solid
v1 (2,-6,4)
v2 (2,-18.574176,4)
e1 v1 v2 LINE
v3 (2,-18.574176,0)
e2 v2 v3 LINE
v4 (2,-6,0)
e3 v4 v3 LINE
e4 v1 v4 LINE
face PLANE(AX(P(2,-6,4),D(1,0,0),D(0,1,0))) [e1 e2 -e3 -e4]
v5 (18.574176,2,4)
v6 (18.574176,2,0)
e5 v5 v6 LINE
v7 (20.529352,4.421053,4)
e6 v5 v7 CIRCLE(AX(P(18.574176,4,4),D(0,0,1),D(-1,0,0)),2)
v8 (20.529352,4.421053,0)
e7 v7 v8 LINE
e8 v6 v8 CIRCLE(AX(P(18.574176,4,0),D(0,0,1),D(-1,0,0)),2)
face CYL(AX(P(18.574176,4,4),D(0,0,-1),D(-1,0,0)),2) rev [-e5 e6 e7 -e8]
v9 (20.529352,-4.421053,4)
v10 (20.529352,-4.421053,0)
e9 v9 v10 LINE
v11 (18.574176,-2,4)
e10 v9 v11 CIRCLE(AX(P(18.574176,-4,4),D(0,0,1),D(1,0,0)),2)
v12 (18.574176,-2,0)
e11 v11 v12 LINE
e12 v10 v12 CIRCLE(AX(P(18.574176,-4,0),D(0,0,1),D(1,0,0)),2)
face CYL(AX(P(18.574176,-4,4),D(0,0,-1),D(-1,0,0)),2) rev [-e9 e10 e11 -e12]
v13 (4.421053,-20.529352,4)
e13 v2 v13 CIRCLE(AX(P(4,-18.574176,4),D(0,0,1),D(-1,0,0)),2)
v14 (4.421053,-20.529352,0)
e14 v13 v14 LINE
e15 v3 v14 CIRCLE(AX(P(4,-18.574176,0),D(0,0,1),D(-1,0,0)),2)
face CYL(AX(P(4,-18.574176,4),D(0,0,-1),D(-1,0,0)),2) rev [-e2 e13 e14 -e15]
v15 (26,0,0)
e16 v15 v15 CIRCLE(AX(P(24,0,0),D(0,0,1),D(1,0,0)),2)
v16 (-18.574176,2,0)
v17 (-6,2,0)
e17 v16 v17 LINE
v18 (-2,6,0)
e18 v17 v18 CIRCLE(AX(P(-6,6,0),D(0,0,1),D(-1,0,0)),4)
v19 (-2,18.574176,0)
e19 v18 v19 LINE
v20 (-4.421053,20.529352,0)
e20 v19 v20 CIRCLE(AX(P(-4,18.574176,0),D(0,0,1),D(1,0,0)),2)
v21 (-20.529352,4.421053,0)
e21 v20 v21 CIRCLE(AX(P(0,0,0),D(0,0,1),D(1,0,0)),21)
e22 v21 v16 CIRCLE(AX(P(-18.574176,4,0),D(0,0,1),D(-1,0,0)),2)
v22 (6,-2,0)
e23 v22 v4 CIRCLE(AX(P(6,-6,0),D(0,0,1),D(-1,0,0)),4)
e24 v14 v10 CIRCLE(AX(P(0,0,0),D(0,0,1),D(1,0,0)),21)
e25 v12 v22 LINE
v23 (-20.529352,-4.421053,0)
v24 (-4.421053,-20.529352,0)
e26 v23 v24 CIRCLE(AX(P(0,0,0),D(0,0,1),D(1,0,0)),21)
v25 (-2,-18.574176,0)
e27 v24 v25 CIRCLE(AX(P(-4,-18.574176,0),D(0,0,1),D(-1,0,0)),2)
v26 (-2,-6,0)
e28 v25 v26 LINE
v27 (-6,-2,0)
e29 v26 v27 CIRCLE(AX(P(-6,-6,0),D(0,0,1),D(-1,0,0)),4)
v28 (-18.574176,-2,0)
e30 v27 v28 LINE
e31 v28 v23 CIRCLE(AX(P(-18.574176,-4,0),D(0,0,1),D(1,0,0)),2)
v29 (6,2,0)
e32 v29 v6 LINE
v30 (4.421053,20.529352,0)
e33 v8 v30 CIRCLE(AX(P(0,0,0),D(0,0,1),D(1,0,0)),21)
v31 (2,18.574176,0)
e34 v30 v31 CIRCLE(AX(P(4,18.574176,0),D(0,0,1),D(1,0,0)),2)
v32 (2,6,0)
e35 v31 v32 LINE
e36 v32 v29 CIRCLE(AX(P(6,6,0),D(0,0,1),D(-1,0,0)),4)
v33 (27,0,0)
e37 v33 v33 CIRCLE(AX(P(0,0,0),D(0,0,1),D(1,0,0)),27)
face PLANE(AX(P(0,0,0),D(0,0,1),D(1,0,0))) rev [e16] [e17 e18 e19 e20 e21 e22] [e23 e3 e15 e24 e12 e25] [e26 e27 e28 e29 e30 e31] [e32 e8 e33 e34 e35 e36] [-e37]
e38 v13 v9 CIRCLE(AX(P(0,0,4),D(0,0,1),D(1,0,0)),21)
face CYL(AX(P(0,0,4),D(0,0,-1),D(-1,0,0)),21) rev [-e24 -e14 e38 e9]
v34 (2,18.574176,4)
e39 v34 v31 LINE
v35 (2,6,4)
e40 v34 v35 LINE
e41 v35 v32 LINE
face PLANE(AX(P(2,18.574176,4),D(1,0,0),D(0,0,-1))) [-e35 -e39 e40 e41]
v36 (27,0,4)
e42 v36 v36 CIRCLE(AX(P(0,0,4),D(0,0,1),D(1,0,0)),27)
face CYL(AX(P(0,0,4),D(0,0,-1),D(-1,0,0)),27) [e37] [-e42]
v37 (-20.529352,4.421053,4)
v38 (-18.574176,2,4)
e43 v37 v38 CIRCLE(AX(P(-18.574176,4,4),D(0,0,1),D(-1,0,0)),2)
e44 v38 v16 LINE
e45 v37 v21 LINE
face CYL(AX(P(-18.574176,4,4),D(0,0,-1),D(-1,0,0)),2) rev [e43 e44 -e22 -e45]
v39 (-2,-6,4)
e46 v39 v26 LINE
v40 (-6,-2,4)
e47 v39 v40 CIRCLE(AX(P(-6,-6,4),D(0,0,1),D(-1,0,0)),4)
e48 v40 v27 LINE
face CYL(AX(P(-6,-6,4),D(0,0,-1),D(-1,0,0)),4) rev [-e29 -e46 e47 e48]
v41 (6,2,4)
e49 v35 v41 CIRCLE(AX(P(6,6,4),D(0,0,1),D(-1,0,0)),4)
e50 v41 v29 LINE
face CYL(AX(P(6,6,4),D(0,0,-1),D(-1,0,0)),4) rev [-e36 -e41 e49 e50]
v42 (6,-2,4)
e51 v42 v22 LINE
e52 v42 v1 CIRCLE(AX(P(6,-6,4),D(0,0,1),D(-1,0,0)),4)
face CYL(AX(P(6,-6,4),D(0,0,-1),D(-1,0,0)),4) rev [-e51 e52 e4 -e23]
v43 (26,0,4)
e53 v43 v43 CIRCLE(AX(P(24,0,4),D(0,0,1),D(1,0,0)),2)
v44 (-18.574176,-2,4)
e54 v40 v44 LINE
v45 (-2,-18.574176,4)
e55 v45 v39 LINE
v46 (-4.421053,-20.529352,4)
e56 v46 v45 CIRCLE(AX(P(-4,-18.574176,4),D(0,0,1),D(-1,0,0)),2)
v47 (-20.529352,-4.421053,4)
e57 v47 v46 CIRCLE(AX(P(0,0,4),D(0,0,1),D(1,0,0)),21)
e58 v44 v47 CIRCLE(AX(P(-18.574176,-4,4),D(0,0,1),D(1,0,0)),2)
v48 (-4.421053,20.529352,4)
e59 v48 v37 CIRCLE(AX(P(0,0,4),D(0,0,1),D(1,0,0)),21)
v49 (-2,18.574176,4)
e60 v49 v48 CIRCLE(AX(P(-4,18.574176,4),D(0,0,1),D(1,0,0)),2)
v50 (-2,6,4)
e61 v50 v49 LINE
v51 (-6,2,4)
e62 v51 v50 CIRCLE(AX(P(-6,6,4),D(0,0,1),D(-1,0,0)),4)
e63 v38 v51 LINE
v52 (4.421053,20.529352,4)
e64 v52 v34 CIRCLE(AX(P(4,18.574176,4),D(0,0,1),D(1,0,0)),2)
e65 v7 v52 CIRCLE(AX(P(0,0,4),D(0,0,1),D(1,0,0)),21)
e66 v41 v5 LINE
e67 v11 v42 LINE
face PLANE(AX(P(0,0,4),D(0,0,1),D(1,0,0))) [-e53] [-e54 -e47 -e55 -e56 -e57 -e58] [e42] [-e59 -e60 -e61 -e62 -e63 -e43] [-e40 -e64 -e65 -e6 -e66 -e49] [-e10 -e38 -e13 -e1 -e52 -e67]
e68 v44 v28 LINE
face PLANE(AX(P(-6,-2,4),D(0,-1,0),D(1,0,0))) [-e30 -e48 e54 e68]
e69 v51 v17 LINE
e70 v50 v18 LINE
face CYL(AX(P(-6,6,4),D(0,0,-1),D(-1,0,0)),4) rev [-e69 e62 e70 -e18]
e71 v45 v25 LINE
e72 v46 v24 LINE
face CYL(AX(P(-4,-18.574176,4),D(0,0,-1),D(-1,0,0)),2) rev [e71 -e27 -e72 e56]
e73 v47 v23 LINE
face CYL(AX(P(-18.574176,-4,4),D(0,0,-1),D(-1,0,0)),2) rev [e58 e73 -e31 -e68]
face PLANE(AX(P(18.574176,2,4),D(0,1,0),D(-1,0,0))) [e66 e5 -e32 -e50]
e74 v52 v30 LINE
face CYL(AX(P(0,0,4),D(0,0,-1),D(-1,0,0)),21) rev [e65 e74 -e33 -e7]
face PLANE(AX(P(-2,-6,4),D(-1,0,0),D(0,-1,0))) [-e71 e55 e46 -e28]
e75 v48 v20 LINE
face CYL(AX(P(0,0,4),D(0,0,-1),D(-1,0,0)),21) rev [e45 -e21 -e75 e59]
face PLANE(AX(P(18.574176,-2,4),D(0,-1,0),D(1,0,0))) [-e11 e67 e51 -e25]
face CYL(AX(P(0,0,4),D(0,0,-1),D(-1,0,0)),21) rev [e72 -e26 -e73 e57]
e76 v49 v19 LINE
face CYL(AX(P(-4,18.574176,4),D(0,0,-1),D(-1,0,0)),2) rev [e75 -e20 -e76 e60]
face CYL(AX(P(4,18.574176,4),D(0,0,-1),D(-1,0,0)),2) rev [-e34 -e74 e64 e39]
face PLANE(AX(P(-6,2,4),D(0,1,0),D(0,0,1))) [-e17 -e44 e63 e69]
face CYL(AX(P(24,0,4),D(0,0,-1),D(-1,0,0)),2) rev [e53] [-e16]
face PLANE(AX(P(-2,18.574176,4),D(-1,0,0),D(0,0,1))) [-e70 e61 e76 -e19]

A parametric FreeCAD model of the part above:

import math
import FreeCAD as App
import Part
import Sketcher
from FreeCAD import Vector

doc = App.newDocument("Part")
body = doc.addObject("PartDesign::Body", "Body")

sketch1 = body.newObject("Sketcher::SketchObject", "Sketch")
sketch1.AttachmentSupport = (doc.getObject("XY_Plane"), [""])
sketch1.MapMode = "FlatFace"
sketch1.addGeometry(Part.Circle(Vector(0, 0, 0), Vector(0, 0, 1), 27), False)
sketch1.addGeometry(Part.LineSegment(Vector(-18.574176, -2, 0), Vector(-6, -2, 0)), False)
sketch1.addGeometry(Part.ArcOfCircle(Part.Circle(Vector(-6, -6, 0), Vector(0, 0, 1), 4), math.radians(0), math.radians(90)), False)
sketch1.addGeometry(Part.LineSegment(Vector(-2, -6, 0), Vector(-2, -18.574176, 0)), False)
sketch1.addGeometry(Part.ArcOfCircle(Part.Circle(Vector(-4, -18.574176, 0), Vector(0, 0, 1), 2), math.radians(-102.153197), math.radians(0)), False)
sketch1.addGeometry(Part.ArcOfCircle(Part.Circle(Vector(0, 0, 0), Vector(0, 0, 1), 21), math.radians(-167.846803), math.radians(-102.153197)), False)
sketch1.addGeometry(Part.ArcOfCircle(Part.Circle(Vector(-18.574176, -4, 0), Vector(0, 0, 1), 2), math.radians(90), math.radians(192.153197)), False)
sketch1.addGeometry(Part.LineSegment(Vector(6, -2, 0), Vector(18.574176, -2, 0)), False)
sketch1.addGeometry(Part.ArcOfCircle(Part.Circle(Vector(18.574176, -4, 0), Vector(0, 0, 1), 2), math.radians(-12.153197), math.radians(90)), False)
sketch1.addGeometry(Part.ArcOfCircle(Part.Circle(Vector(0, 0, 0), Vector(0, 0, 1), 21), math.radians(-77.846803), math.radians(-12.153197)), False)
sketch1.addGeometry(Part.ArcOfCircle(Part.Circle(Vector(4, -18.574176, 0), Vector(0, 0, 1), 2), math.radians(180), math.radians(282.153197)), False)
sketch1.addGeometry(Part.LineSegment(Vector(2, -18.574176, 0), Vector(2, -6, 0)), False)
sketch1.addGeometry(Part.ArcOfCircle(Part.Circle(Vector(6, -6, 0), Vector(0, 0, 1), 4), math.radians(90), math.radians(180)), False)
sketch1.addGeometry(Part.ArcOfCircle(Part.Circle(Vector(-4, 18.574176, 0), Vector(0, 0, 1), 2), math.radians(0), math.radians(102.153197)), False)
sketch1.addGeometry(Part.LineSegment(Vector(-2, 18.574176, 0), Vector(-2, 6, 0)), False)
sketch1.addGeometry(Part.ArcOfCircle(Part.Circle(Vector(-6, 6, 0), Vector(0, 0, 1), 4), math.radians(-90), math.radians(0)), False)
sketch1.addGeometry(Part.LineSegment(Vector(-6, 2, 0), Vector(-18.574176, 2, 0)), False)
sketch1.addGeometry(Part.ArcOfCircle(Part.Circle(Vector(-18.574176, 4, 0), Vector(0, 0, 1), 2), math.radians(167.846803), math.radians(270)), False)
sketch1.addGeometry(Part.ArcOfCircle(Part.Circle(Vector(0, 0, 0), Vector(0, 0, 1), 21), math.radians(102.153197), math.radians(167.846803)), False)
sketch1.addGeometry(Part.Circle(Vector(24, 0, 0), Vector(0, 0, 1), 2), False)
sketch1.addGeometry(Part.ArcOfCircle(Part.Circle(Vector(18.574176, 4, 0), Vector(0, 0, 1), 2), math.radians(-90), math.radians(12.153197)), False)
sketch1.addGeometry(Part.LineSegment(Vector(18.574176, 2, 0), Vector(6, 2, 0)), False)
sketch1.addGeometry(Part.ArcOfCircle(Part.Circle(Vector(6, 6, 0), Vector(0, 0, 1), 4), math.radians(180), math.radians(270)), False)
sketch1.addGeometry(Part.LineSegment(Vector(2, 6, 0), Vector(2, 18.574176, 0)), False)
sketch1.addGeometry(Part.ArcOfCircle(Part.Circle(Vector(4, 18.574176, 0), Vector(0, 0, 1), 2), math.radians(77.846803), math.radians(180)), False)
sketch1.addGeometry(Part.ArcOfCircle(Part.Circle(Vector(0, 0, 0), Vector(0, 0, 1), 21), math.radians(12.153197), math.radians(77.846803)), False)
sketch1.addConstraint(Sketcher.Constraint("Tangent", 1, 2, 2, 2))
sketch1.addConstraint(Sketcher.Constraint("Tangent", 2, 1, 3, 1))
sketch1.addConstraint(Sketcher.Constraint("Tangent", 3, 2, 4, 2))
sketch1.addConstraint(Sketcher.Constraint("Tangent", 4, 1, 5, 2))
sketch1.addConstraint(Sketcher.Constraint("Tangent", 5, 1, 6, 2))
sketch1.addConstraint(Sketcher.Constraint("Tangent", 6, 1, 1, 1))
sketch1.addConstraint(Sketcher.Constraint("Tangent", 7, 2, 8, 2))
sketch1.addConstraint(Sketcher.Constraint("Tangent", 8, 1, 9, 2))
sketch1.addConstraint(Sketcher.Constraint("Tangent", 9, 1, 10, 2))
sketch1.addConstraint(Sketcher.Constraint("Tangent", 10, 1, 11, 1))
sketch1.addConstraint(Sketcher.Constraint("Tangent", 11, 2, 12, 2))
sketch1.addConstraint(Sketcher.Constraint("Tangent", 12, 1, 7, 1))
sketch1.addConstraint(Sketcher.Constraint("Tangent", 13, 1, 14, 1))
sketch1.addConstraint(Sketcher.Constraint("Tangent", 14, 2, 15, 2))
sketch1.addConstraint(Sketcher.Constraint("Tangent", 15, 1, 16, 1))
sketch1.addConstraint(Sketcher.Constraint("Tangent", 16, 2, 17, 2))
sketch1.addConstraint(Sketcher.Constraint("Tangent", 17, 1, 18, 2))
sketch1.addConstraint(Sketcher.Constraint("Tangent", 18, 1, 13, 2))
sketch1.addConstraint(Sketcher.Constraint("Tangent", 20, 1, 21, 1))
sketch1.addConstraint(Sketcher.Constraint("Tangent", 21, 2, 22, 2))
sketch1.addConstraint(Sketcher.Constraint("Tangent", 22, 1, 23, 1))
sketch1.addConstraint(Sketcher.Constraint("Tangent", 23, 2, 24, 2))
sketch1.addConstraint(Sketcher.Constraint("Tangent", 24, 1, 25, 2))
sketch1.addConstraint(Sketcher.Constraint("Tangent", 25, 1, 20, 2))
sketch1.addConstraint(Sketcher.Constraint("Horizontal", 1))
sketch1.addConstraint(Sketcher.Constraint("Vertical", 3))
sketch1.addConstraint(Sketcher.Constraint("Horizontal", 7))
sketch1.addConstraint(Sketcher.Constraint("Vertical", 11))
sketch1.addConstraint(Sketcher.Constraint("Vertical", 14))
sketch1.addConstraint(Sketcher.Constraint("Horizontal", 16))
sketch1.addConstraint(Sketcher.Constraint("Horizontal", 21))
sketch1.addConstraint(Sketcher.Constraint("Vertical", 23))
sketch1.addConstraint(Sketcher.Constraint("Coincident", 0, 3, -1, 1))
sketch1.addConstraint(Sketcher.Constraint("Coincident", 5, 3, -1, 1))
sketch1.addConstraint(Sketcher.Constraint("Coincident", 9, 3, -1, 1))
sketch1.addConstraint(Sketcher.Constraint("Coincident", 18, 3, -1, 1))
sketch1.addConstraint(Sketcher.Constraint("Coincident", 25, 3, -1, 1))
sketch1.addConstraint(Sketcher.Constraint("Equal", 4, 6))
sketch1.addConstraint(Sketcher.Constraint("Equal", 6, 8))
sketch1.addConstraint(Sketcher.Constraint("Equal", 5, 9))
sketch1.addConstraint(Sketcher.Constraint("Equal", 8, 10))
sketch1.addConstraint(Sketcher.Constraint("Equal", 2, 12))
sketch1.addConstraint(Sketcher.Constraint("Equal", 10, 13))
sketch1.addConstraint(Sketcher.Constraint("Equal", 12, 15))
sketch1.addConstraint(Sketcher.Constraint("Equal", 13, 17))
sketch1.addConstraint(Sketcher.Constraint("Equal", 9, 18))
sketch1.addConstraint(Sketcher.Constraint("Equal", 17, 19))
sketch1.addConstraint(Sketcher.Constraint("Equal", 19, 20))
sketch1.addConstraint(Sketcher.Constraint("Equal", 15, 22))
sketch1.addConstraint(Sketcher.Constraint("Equal", 20, 24))
sketch1.addConstraint(Sketcher.Constraint("Equal", 18, 25))
sketch1.addConstraint(Sketcher.Constraint("Symmetric", 12, 3, 15, 3, -1, 1))
sketch1.addConstraint(Sketcher.Constraint("Symmetric", 2, 3, 22, 3, -1, 1))
sketch1.addConstraint(Sketcher.Constraint("Symmetric", 2, 3, 12, 3, -2))
sketch1.addConstraint(Sketcher.Constraint("PointOnObject", 19, 3, -1))
sketch1.addConstraint(Sketcher.Constraint("Equal", 21, 3))
sketch1.addConstraint(Sketcher.Constraint("Diameter", 0, 54.0))
sketch1.addConstraint(Sketcher.Constraint("Diameter", 19, 4.0))
sketch1.addConstraint(Sketcher.Constraint("Radius", 2, 4.0))
sketch1.addConstraint(Sketcher.Constraint("Radius", 5, 21.0))
sketch1.addConstraint(Sketcher.Constraint("DistanceX", 2, 3, -1, 1, 6.0))
sketch1.addConstraint(Sketcher.Constraint("DistanceX", -1, 1, 19, 3, 24.0))
pad1 = body.newObject("PartDesign::Pad", "Pad")
pad1.Profile = sketch1
pad1.Length = 4

doc.recompute()
